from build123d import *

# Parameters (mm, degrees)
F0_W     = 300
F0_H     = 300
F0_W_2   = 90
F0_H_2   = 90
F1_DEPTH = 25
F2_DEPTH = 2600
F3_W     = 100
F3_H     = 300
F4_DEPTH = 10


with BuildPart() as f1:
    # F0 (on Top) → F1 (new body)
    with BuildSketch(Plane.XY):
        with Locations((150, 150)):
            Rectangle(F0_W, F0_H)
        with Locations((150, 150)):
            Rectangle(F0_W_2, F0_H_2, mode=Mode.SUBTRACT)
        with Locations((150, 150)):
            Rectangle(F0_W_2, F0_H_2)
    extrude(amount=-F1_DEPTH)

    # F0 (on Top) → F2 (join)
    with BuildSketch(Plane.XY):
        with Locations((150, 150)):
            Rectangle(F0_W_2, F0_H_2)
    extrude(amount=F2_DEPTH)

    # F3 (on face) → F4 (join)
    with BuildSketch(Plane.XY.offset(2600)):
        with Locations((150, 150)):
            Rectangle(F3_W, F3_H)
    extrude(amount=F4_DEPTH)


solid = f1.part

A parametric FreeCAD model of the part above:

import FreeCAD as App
import Part
import Sketcher

V = App.Vector

doc = App.newDocument("Part")
body = doc.addObject("PartDesign::Body", "Body")

# Sketch on XY plane
sketch1 = body.newObject("Sketcher::SketchObject", "Sketch")
sketch1.AttachmentSupport = (doc.getObject("XY_Plane"), [""])
sketch1.MapMode = "FlatFace"
sketch1.addGeometry(Part.LineSegment(V(0, 300, 0), V(0, 0, 0)), False)
sketch1.addGeometry(Part.LineSegment(V(0, 0, 0), V(300, 0, 0)), False)
sketch1.addGeometry(Part.LineSegment(V(300, 0, 0), V(300, 300, 0)), False)
sketch1.addGeometry(Part.LineSegment(V(300, 300, 0), V(0, 300, 0)), False)
sketch1.addConstraint(Sketcher.Constraint("Coincident", 0, 2, 1, 1))
sketch1.addConstraint(Sketcher.Constraint("Coincident", 1, 2, 2, 1))
sketch1.addConstraint(Sketcher.Constraint("Coincident", 2, 2, 3, 1))
sketch1.addConstraint(Sketcher.Constraint("Coincident", 3, 2, 0, 1))
sketch1.addConstraint(Sketcher.Constraint("Vertical", 0))
sketch1.addConstraint(Sketcher.Constraint("Horizontal", 1))
sketch1.addConstraint(Sketcher.Constraint("Vertical", 2))
sketch1.addConstraint(Sketcher.Constraint("Horizontal", 3))
sketch1.addConstraint(Sketcher.Constraint("Coincident", 0, 2, -1, 1))
sketch1.addConstraint(Sketcher.Constraint("Equal", 3, 0))
sketch1.addConstraint(Sketcher.Constraint("DistanceX", 1, 1, 1, 2, 300.0))
pad1 = body.newObject("PartDesign::Pad", "Pad")
pad1.Profile = sketch1
pad1.Length = 25
pad1.Reversed = True

# Sketch on XY plane
sketch2 = body.newObject("Sketcher::SketchObject", "Sketch001")
sketch2.AttachmentSupport = (doc.getObject("XY_Plane"), [""])
sketch2.MapMode = "FlatFace"
sketch2.addGeometry(Part.LineSegment(V(105, 195, 0), V(105, 105, 0)), False)
sketch2.addGeometry(Part.LineSegment(V(105, 105, 0), V(195, 105, 0)), False)
sketch2.addGeometry(Part.LineSegment(V(195, 105, 0), V(195, 195, 0)), False)
sketch2.addGeometry(Part.LineSegment(V(195, 195, 0), V(105, 195, 0)), False)
sketch2.addConstraint(Sketcher.Constraint("Coincident", 0, 2, 1, 1))
sketch2.addConstraint(Sketcher.Constraint("Coincident", 1, 2, 2, 1))
sketch2.addConstraint(Sketcher.Constraint("Coincident", 2, 2, 3, 1))
sketch2.addConstraint(Sketcher.Constraint("Coincident", 3, 2, 0, 1))
sketch2.addConstraint(Sketcher.Constraint("Vertical", 0))
sketch2.addConstraint(Sketcher.Constraint("Horizontal", 1))
sketch2.addConstraint(Sketcher.Constraint("Vertical", 2))
sketch2.addConstraint(Sketcher.Constraint("Horizontal", 3))
sketch2.addConstraint(Sketcher.Constraint("Equal", 3, 0))
sketch2.addConstraint(Sketcher.Constraint("DistanceX", 1, 1, 1, 2, 90.0))
sketch2.addConstraint(Sketcher.Constraint("DistanceX", -1, 1, 0, 2, 105.0))
sketch2.addConstraint(Sketcher.Constraint("DistanceY", -1, 1, 0, 2, 105.0))
pad2 = body.newObject("PartDesign::Pad", "Pad001")
pad2.Profile = sketch2
pad2.Length = 2600

# Sketch on XY plane
sketch3 = body.newObject("Sketcher::SketchObject", "Sketch002")
sketch3.AttachmentSupport = (doc.getObject("XY_Plane"), [""])
sketch3.MapMode = "FlatFace"
sketch3.AttachmentOffset = App.Placement(V(0, 0, 2600), App.Rotation())
sketch3.addGeometry(Part.LineSegment(V(100, 300, 0), V(100, 0, 0)), False)
sketch3.addGeometry(Part.LineSegment(V(100, 0, 0), V(200, 0, 0)), False)
sketch3.addGeometry(Part.LineSegment(V(200, 0, 0), V(200, 300, 0)), False)
sketch3.addGeometry(Part.LineSegment(V(200, 300, 0), V(100, 300, 0)), False)
sketch3.addConstraint(Sketcher.Constraint("Coincident", 0, 2, 1, 1))
sketch3.addConstraint(Sketcher.Constraint("Coincident", 1, 2, 2, 1))
sketch3.addConstraint(Sketcher.Constraint("Coincident", 2, 2, 3, 1))
sketch3.addConstraint(Sketcher.Constraint("Coincident", 3, 2, 0, 1))
sketch3.addConstraint(Sketcher.Constraint("Vertical", 0))
sketch3.addConstraint(Sketcher.Constraint("Horizontal", 1))
sketch3.addConstraint(Sketcher.Constraint("Vertical", 2))
sketch3.addConstraint(Sketcher.Constraint("Horizontal", 3))
sketch3.addConstraint(Sketcher.Constraint("PointOnObject", 0, 2, -1))
sketch3.addConstraint(Sketcher.Constraint("DistanceX", 1, 1, 1, 2, 100.0))
sketch3.addConstraint(Sketcher.Constraint("DistanceY", 0, 2, 0, 1, 300.0))
sketch3.addConstraint(Sketcher.Constraint("DistanceX", -1, 1, 0, 2, 100.0))
pad3 = body.newObject("PartDesign::Pad", "Pad002")
pad3.Profile = sketch3
pad3.Length = 10

doc.recompute()
